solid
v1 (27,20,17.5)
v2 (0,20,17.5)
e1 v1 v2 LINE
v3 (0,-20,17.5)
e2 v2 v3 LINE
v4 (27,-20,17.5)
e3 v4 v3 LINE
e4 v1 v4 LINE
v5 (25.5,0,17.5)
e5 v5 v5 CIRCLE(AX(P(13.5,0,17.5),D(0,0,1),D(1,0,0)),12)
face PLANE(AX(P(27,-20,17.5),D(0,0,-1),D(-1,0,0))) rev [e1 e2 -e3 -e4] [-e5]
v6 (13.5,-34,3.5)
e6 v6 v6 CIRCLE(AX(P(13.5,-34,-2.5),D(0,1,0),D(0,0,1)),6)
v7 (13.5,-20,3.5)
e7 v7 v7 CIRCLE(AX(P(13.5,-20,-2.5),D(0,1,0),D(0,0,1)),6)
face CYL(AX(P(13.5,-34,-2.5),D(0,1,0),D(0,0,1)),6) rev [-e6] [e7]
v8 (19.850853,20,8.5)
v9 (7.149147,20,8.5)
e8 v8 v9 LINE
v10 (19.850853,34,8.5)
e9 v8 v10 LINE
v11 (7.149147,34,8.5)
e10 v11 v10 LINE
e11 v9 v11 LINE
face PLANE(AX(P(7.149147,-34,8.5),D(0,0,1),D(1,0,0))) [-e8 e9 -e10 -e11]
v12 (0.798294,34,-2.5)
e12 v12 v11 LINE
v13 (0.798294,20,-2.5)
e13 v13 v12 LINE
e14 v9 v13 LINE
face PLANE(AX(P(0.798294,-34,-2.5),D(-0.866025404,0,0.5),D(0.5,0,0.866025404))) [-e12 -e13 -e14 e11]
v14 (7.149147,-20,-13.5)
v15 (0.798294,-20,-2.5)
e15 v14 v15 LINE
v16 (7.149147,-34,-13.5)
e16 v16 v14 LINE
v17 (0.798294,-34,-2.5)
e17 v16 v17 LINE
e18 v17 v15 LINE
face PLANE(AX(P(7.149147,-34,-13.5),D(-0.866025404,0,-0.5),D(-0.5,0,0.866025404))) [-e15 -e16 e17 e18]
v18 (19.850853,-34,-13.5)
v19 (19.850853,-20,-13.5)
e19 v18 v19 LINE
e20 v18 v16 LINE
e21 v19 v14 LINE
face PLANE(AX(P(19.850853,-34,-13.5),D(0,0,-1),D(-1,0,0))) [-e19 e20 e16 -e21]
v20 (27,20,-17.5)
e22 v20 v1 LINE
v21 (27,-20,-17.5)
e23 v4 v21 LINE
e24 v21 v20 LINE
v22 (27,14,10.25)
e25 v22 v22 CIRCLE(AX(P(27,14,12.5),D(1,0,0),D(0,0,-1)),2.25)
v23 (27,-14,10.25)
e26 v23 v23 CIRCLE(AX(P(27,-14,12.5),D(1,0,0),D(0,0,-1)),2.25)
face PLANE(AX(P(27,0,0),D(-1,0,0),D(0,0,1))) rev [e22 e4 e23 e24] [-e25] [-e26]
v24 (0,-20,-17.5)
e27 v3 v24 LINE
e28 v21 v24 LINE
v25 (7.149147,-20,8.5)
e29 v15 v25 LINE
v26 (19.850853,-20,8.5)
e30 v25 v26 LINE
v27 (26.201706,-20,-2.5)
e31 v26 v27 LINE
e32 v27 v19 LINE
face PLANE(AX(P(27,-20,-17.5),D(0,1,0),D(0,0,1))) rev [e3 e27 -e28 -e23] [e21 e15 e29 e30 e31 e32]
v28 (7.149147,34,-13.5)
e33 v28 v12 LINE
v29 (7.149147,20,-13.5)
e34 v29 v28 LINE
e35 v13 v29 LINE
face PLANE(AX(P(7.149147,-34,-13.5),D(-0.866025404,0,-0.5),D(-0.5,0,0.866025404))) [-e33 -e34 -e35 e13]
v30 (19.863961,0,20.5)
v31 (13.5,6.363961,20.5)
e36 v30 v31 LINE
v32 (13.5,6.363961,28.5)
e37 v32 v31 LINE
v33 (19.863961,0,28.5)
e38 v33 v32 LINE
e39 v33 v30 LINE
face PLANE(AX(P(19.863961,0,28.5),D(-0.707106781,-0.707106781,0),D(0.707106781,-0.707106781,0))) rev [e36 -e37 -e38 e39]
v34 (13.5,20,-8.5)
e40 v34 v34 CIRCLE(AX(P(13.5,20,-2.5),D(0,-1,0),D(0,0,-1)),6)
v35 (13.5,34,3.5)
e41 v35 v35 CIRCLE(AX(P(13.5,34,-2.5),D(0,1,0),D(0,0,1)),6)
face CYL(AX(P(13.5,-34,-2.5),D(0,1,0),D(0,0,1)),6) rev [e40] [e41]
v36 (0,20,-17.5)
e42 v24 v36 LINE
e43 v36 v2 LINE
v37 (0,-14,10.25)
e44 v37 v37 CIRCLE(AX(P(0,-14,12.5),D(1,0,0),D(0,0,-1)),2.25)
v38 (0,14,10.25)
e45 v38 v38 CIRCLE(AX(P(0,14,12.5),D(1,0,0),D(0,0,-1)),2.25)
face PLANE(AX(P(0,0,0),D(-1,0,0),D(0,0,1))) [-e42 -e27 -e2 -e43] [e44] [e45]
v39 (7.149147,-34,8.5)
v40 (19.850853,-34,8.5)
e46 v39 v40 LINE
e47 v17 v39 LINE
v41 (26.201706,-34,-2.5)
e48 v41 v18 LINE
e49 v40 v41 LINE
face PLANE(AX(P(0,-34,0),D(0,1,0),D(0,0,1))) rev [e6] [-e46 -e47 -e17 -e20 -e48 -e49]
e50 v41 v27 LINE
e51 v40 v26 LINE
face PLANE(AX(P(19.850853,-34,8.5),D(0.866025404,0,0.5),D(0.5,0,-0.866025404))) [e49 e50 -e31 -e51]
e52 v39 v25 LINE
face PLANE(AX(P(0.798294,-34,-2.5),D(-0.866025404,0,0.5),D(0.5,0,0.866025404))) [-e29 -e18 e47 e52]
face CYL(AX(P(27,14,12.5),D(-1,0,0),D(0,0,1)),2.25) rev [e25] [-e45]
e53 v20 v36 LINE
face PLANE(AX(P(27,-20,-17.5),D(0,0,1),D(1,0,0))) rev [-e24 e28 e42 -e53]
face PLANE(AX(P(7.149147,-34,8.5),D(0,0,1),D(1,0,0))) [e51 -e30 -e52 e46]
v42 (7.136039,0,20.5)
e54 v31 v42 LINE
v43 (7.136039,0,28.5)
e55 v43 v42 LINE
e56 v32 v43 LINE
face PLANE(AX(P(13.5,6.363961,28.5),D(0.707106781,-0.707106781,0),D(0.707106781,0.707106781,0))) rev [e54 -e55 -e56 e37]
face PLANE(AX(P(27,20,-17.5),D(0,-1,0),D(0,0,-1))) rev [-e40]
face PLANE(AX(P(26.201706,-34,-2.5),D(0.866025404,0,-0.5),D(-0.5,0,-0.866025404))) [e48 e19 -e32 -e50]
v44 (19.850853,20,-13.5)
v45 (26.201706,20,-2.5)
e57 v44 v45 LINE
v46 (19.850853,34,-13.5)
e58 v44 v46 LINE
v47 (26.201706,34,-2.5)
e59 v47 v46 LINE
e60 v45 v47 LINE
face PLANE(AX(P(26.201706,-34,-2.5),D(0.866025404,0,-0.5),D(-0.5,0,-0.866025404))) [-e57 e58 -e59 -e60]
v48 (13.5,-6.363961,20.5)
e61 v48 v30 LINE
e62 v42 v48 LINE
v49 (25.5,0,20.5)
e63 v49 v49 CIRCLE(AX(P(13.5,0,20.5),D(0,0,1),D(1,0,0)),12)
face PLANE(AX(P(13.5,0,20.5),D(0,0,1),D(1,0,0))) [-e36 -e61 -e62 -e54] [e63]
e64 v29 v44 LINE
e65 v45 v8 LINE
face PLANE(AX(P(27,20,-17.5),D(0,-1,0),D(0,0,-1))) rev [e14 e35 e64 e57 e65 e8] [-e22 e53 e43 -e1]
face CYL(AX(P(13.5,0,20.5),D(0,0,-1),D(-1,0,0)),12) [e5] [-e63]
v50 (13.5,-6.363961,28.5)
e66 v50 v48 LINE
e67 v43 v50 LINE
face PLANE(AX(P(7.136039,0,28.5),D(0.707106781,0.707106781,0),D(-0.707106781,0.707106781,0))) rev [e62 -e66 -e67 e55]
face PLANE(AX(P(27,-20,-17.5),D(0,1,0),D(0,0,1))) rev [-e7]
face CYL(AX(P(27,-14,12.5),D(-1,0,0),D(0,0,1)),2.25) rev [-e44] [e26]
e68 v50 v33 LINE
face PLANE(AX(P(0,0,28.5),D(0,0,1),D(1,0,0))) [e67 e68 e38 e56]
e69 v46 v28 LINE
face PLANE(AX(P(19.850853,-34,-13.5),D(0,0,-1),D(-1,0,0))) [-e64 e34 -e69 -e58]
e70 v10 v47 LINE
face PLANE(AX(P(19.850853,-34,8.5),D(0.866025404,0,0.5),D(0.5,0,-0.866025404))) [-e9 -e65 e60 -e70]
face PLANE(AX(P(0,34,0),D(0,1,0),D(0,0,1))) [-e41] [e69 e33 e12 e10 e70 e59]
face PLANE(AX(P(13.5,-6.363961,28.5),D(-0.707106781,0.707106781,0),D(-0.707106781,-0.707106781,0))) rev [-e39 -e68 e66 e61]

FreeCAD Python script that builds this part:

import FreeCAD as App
import Part
import Sketcher
from FreeCAD import Vector
Q = App.Units.Quantity


def add_polygon(sketch, points):
    """Adds a closed chain of lines whose ends are joined by coincident constraints."""
    first, n = sketch.GeometryCount, len(points)
    for a, b in zip(points, points[1:] + points[:1]):
        sketch.addGeometry(Part.LineSegment(App.Vector(*a, 0), App.Vector(*b, 0)), False)
    for i in range(n):
        sketch.addConstraint(Sketcher.Constraint("Coincident", first + i, 2, first + (i + 1) % n, 1))

doc = App.newDocument("Part")
params = doc.addObject("Spreadsheet::Sheet", "Params")
for row, (alias, value) in enumerate([
    ("sketch1_diameter", "4.5 mm"),
    ("sketch1_width", "40 mm"),
    ("sketch1_height", "35 mm"),
    ("pad1_length", "27 mm"),
    ("sketch2_diameter", "12 mm"),
    ("pad2_length", "14 mm"),
    ("pad2_length2", "54 mm"),
    ("sketch3_diameter", "24 mm"),
    ("pad3_length", "3 mm"),
    ("sketch4_length", "9 mm"),
    ("pad4_length", "8 mm"),
], start=1):
    params.set(f"A{row}", alias)
    params.set(f"B{row}", "=" + value)
    params.setAlias(f"B{row}", alias)

body = doc.addObject("PartDesign::Body", "Body")

# Sketch on YZ plane
sketch1 = doc.addObject("Sketcher::SketchObject", "Sketch")
body.addObject(sketch1)
sketch1.AttachmentSupport = (doc.YZ_Plane, [""])
sketch1.MapMode = "FlatFace"
add_polygon(sketch1, [(-20, 17.5), (-20, -17.5), (20, -17.5), (20, 17.5)])  # lines 0-3
sketch1.addGeometry(Part.Circle(Vector(-14, 12.5, 0), Vector(0, 0, 1), 2.2), False)  # 4
sketch1.addGeometry(Part.Circle(Vector(14, 12.5, 0), Vector(0, 0, 1), 2.2), False)  # 5
sketch1.addConstraint([
    Sketcher.Constraint("Vertical", 0),
    Sketcher.Constraint("Horizontal", 1),
    Sketcher.Constraint("Vertical", 2),
    Sketcher.Constraint("Horizontal", 3),
    Sketcher.Constraint("Equal", 4, 5),
    Sketcher.Constraint("Symmetric", 0, 2, 2, 2, -1, 1),
    Sketcher.Constraint("Symmetric", 4, 3, 5, 3, -2),
    Sketcher.Constraint("Diameter", 4, Q("4.5 mm")),
    Sketcher.Constraint("DistanceX", 1, 1, 1, 2, Q("40 mm")),
    Sketcher.Constraint("DistanceY", 0, 2, 0, 1, Q("35 mm")),
    Sketcher.Constraint("DistanceX", 4, 3, -1, 1, Q("14 mm")),
    Sketcher.Constraint("DistanceY", 0, 2, 4, 3, Q("30 mm")),
])
sketch1.setExpression("Constraints[11]", "Params.sketch1_diameter")
sketch1.setExpression("Constraints[12]", "Params.sketch1_width")
sketch1.setExpression("Constraints[13]", "Params.sketch1_height")
pad1 = doc.addObject("PartDesign::Pad", "Pad")
body.addObject(pad1)
pad1.Profile = sketch1
pad1.setExpression("Length", "Params.pad1_length")

# Sketch on XZ plane
sketch2 = doc.addObject("Sketcher::SketchObject", "Sketch001")
body.addObject(sketch2)
sketch2.AttachmentSupport = (doc.XZ_Plane, [""])
sketch2.MapMode = "FlatFace"
sketch2.AttachmentOffset = App.Placement(Vector(0, 0, -20), App.Rotation())
add_polygon(sketch2, [(1, -2), (7, 8), (20, 8), (26, -2), (20, -14), (7, -14)])  # lines 0-5
sketch2.addGeometry(Part.Circle(Vector(14, -2, 0), Vector(0, 0, 1), 6), False)  # 6
sketch2.addConstraint([
    Sketcher.Constraint("Horizontal", 1),
    Sketcher.Constraint("Horizontal", 4),
    Sketcher.Constraint("Parallel", 0, 3),
    Sketcher.Constraint("Parallel", 2, 5),
    Sketcher.Constraint("Horizontal", 6, 3, 2, 2),
    Sketcher.Constraint("Horizontal", 2, 2, 5, 2),
    Sketcher.Constraint("Vertical", 1, 2, 3, 2),
    Sketcher.Constraint("Vertical", 0, 2, 4, 2),
    Sketcher.Constraint("Diameter", 6, Q("12 mm")),
    Sketcher.Constraint("Angle", 0, Q("60 deg")),
    Sketcher.Constraint("DistanceY", 6, 3, 0, 2, Q("11 mm")),
    Sketcher.Constraint("DistanceX", -1, 1, 6, 3, Q("13.5 mm")),
    Sketcher.Constraint("DistanceY", 6, 3, -1, 1, Q("2.5 mm")),
    Sketcher.Constraint("DistanceX", 1, 1, 1, 2, Q("12.701706 mm")),
    Sketcher.Constraint("DistanceX", -1, 1, 0, 2, Q("7.149147 mm")),
])
sketch2.setExpression("Constraints[14]", "Params.sketch2_diameter")
pad2 = doc.addObject("PartDesign::Pad", "Pad001")
body.addObject(pad2)
pad2.Profile = sketch2
pad2.Type = "TwoLengths"
pad2.setExpression("Length", "Params.pad2_length")
pad2.setExpression("Length2", "Params.pad2_length2")
pad2.Reversed = True

# Sketch on XY plane
sketch3 = doc.addObject("Sketcher::SketchObject", "Sketch002")
body.addObject(sketch3)
sketch3.AttachmentSupport = (doc.XY_Plane, [""])
sketch3.MapMode = "FlatFace"
sketch3.AttachmentOffset = App.Placement(Vector(0, 0, 17.5), App.Rotation())
sketch3.addGeometry(Part.Circle(Vector(14, 0, 0), Vector(0, 0, 1), 12), False)
sketch3.addConstraint([
    Sketcher.Constraint("PointOnObject", 0, 3, -1),
    Sketcher.Constraint("Diameter", 0, Q("24 mm")),
    Sketcher.Constraint("DistanceX", -1, 1, 0, 3, Q("13.5 mm")),
])
sketch3.setExpression("Constraints[1]", "Params.sketch3_diameter")
pad3 = doc.addObject("PartDesign::Pad", "Pad002")
body.addObject(pad3)
pad3.Profile = sketch3
pad3.setExpression("Length", "Params.pad3_length")

# Sketch on XY plane
sketch4 = doc.addObject("Sketcher::SketchObject", "Sketch003")
body.addObject(sketch4)
sketch4.AttachmentSupport = (doc.XY_Plane, [""])
sketch4.MapMode = "FlatFace"
sketch4.AttachmentOffset = App.Placement(Vector(0, 0, 20.5), App.Rotation())
add_polygon(sketch4, [(14, 6), (7, 0), (14, -6), (20, 0)])  # lines 0-3
sketch4.addConstraint([
    Sketcher.Constraint("Symmetric", 1, 2, 3, 2, -1),
    Sketcher.Constraint("PointOnObject", 0, 2, -1),
    Sketcher.Constraint("PointOnObject", 2, 2, -1),
    Sketcher.Constraint("Perpendicular", 0, 1),
    Sketcher.Constraint("Perpendicular", 1, 2),
    Sketcher.Constraint("Distance", 0, Q("9 mm")),
    Sketcher.Constraint("DistanceX", -1, 1, 1, 2, Q("13.5 mm")),
])
sketch4.setExpression("Constraints[9]", "Params.sketch4_length")
pad4 = doc.addObject("PartDesign::Pad", "Pad003")
body.addObject(pad4)
pad4.Profile = sketch4
pad4.setExpression("Length", "Params.pad4_length")

doc.recompute()
